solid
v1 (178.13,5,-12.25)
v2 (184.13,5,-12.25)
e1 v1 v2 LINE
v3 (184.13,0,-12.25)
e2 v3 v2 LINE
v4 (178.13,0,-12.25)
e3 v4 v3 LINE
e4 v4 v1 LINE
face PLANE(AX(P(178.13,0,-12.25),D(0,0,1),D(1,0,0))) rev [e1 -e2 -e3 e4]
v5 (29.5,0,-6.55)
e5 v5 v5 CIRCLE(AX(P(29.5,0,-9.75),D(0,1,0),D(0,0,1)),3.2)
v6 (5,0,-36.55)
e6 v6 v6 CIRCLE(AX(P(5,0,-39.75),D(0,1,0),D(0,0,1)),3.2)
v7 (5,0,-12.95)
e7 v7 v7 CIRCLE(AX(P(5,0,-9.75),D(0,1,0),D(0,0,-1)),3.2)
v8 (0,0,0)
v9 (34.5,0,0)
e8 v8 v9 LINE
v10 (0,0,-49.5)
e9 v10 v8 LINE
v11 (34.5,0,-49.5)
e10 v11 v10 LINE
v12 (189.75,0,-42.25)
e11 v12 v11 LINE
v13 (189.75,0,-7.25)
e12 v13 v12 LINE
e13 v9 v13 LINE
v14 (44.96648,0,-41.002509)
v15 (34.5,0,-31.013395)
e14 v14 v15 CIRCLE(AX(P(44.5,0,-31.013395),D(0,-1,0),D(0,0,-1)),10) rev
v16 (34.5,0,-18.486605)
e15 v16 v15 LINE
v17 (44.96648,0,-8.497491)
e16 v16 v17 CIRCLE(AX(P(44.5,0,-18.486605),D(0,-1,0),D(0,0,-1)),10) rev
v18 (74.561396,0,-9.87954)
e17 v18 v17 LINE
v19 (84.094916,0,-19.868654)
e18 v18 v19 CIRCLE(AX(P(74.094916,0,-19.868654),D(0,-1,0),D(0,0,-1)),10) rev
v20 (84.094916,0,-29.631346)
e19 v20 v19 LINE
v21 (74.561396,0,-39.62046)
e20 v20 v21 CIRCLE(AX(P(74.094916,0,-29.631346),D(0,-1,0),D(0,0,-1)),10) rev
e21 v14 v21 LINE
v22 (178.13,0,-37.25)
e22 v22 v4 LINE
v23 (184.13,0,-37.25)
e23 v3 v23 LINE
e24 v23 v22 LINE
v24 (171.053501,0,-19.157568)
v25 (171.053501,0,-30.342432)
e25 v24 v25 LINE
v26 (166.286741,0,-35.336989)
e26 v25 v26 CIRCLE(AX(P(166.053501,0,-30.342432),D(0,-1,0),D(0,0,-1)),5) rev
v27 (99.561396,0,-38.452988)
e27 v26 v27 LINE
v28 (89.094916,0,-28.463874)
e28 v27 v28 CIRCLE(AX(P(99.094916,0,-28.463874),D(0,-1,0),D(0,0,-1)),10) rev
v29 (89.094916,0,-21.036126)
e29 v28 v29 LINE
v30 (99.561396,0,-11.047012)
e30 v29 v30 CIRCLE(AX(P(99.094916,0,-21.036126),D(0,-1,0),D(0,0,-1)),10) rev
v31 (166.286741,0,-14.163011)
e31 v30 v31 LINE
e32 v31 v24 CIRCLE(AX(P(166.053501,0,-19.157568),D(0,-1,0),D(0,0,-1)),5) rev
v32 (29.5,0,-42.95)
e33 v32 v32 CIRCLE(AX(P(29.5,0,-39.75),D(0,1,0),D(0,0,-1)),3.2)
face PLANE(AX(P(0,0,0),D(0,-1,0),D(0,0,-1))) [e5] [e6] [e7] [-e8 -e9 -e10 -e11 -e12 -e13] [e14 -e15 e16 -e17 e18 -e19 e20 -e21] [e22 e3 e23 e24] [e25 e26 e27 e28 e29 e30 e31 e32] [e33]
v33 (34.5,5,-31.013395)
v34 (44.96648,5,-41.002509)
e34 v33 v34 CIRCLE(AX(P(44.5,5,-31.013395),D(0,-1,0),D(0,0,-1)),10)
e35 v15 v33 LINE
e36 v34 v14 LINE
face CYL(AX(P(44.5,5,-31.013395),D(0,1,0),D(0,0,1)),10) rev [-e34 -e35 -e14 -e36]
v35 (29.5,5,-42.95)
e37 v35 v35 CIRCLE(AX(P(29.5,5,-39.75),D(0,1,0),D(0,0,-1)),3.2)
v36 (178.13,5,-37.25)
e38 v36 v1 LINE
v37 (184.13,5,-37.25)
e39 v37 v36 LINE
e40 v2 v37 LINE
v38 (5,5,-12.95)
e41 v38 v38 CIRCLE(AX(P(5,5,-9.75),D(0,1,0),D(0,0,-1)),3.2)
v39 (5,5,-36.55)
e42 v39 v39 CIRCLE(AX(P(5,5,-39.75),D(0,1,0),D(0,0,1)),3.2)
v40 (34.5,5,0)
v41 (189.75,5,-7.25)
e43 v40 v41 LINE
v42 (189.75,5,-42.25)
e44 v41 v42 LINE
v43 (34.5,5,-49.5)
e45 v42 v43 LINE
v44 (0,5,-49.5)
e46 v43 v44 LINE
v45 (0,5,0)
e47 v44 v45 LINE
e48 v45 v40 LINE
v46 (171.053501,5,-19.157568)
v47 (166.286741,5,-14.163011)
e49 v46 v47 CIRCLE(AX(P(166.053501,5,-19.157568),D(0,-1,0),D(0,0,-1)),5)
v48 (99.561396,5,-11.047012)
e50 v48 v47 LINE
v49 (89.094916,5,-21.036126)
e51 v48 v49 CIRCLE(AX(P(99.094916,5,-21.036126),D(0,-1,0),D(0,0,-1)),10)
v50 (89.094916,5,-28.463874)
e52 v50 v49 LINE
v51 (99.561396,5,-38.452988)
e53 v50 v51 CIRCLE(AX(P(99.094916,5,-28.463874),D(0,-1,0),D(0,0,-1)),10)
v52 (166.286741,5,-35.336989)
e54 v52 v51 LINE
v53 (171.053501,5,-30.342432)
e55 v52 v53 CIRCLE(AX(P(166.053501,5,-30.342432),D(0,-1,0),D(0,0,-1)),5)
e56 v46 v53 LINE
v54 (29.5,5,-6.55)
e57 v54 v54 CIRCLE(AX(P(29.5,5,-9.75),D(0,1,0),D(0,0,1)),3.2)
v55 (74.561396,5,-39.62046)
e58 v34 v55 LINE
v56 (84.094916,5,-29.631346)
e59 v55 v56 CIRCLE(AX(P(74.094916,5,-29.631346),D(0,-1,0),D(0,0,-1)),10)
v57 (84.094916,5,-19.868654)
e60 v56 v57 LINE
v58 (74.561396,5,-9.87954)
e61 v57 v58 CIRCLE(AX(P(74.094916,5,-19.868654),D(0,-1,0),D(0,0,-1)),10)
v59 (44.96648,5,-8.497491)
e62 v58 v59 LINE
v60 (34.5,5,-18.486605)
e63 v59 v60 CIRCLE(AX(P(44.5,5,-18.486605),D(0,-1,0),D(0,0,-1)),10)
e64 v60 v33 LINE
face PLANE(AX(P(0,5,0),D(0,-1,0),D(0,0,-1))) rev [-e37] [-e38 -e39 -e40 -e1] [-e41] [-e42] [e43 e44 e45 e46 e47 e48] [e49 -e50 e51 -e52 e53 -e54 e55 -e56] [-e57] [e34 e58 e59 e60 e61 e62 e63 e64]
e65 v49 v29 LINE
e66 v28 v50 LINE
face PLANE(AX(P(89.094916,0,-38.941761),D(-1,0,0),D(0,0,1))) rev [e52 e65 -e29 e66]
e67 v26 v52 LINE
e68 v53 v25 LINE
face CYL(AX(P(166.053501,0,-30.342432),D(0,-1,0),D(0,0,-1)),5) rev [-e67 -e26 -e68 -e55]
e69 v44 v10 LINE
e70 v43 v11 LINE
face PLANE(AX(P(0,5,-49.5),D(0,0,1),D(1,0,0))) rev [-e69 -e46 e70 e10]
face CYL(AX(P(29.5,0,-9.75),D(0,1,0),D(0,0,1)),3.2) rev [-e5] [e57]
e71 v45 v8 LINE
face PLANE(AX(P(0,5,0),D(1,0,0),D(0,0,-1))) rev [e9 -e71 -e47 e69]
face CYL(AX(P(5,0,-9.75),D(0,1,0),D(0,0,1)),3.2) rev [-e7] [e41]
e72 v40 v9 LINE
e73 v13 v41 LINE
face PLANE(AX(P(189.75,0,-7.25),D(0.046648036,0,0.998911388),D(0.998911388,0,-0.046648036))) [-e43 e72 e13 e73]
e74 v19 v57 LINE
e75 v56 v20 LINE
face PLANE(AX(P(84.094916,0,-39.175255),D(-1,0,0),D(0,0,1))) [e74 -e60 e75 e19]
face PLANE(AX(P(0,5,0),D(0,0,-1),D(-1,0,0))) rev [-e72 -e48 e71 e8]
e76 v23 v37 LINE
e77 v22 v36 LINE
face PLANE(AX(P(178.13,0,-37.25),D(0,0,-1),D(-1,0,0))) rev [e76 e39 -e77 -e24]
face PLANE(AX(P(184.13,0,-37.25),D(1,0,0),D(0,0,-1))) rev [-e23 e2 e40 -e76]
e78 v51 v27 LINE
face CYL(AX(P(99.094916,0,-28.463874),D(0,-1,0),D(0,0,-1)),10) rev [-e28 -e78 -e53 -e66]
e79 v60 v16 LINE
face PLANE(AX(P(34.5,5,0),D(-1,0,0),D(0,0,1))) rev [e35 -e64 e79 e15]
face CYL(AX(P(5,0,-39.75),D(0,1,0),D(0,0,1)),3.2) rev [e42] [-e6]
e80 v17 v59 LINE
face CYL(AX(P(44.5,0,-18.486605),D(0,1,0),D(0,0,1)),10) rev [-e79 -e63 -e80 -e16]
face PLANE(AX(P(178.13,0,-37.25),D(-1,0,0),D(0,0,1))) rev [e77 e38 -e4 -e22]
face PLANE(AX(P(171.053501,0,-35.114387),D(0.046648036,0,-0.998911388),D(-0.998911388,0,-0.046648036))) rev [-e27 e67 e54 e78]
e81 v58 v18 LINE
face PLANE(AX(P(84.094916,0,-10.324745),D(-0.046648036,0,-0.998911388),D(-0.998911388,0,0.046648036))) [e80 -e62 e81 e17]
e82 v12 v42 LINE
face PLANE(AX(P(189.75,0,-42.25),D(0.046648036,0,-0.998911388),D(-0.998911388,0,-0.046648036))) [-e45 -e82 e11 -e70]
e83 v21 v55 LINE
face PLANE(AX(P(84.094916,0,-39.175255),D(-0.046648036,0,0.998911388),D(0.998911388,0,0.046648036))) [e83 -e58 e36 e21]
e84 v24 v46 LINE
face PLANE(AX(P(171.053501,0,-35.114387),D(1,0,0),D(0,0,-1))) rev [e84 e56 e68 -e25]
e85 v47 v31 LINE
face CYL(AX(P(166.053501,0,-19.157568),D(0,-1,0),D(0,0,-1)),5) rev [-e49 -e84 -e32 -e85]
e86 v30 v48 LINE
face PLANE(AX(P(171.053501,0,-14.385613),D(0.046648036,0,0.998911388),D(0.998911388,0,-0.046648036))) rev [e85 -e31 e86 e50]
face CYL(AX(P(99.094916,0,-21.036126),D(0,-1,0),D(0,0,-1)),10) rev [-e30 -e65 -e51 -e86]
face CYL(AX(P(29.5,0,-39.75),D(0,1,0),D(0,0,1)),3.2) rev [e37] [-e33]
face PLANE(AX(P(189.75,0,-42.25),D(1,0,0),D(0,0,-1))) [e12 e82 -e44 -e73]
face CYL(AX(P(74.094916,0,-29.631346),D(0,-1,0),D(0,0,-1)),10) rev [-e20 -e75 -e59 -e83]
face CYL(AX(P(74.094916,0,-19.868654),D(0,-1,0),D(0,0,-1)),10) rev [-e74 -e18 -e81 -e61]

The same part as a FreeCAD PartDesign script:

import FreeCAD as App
import Part
import Sketcher
from FreeCAD import Vector
Q = App.Units.Quantity


def edges_at(feature, points):
    """Names of the edges that pass closest to the given points."""
    edges = feature.Shape.Edges
    near = lambda p: min(range(len(edges)), key=lambda i: edges[i].distToShape(Part.Vertex(*p))[0])
    return sorted({f"Edge{near(p) + 1}" for p in points})

doc = App.newDocument("Part")
params = doc.addObject("Spreadsheet::Sheet", "Params")
for row, (alias, value) in enumerate([
    ("sketch1_width", "34.5 mm"),
    ("sketch1_height", "49.5 mm"),
    ("pad1_length", "5 mm"),
    ("sketch2_diameter", "6.4 mm"),
    ("pocket1_length", "5 mm"),
    ("sketch3_width", "6 mm"),
    ("sketch3_height", "35 mm"),
    ("sketch3_height2", "25 mm"),
    ("pad2_length", "5 mm"),
    ("fillet_radius", "10 mm"),
    ("fillet2_radius", "5 mm"),
], start=1):
    params.set(f"A{row}", alias)
    params.set(f"B{row}", "=" + value)
    params.setAlias(f"B{row}", alias)

body = doc.addObject("PartDesign::Body", "Body")

sketch1 = body.newObject("Sketcher::SketchObject", "Sketch")
sketch1.AttachmentSupport = (doc.getObject("XZ_Plane"), [""])
sketch1.MapMode = "FlatFace"
sketch1.addGeometry([
    Part.LineSegment(Vector(0, -49.5, 0), Vector(0, 0, 0)),
    Part.LineSegment(Vector(0, 0, 0), Vector(34.5, 0, 0)),
    Part.LineSegment(Vector(34.5, 0, 0), Vector(34.5, -49.5, 0)),
    Part.LineSegment(Vector(34.5, -49.5, 0), Vector(0, -49.5, 0)),
], False)
sketch1.addConstraint([
    Sketcher.Constraint("Coincident", 0, 2, 1, 1),
    Sketcher.Constraint("Coincident", 1, 2, 2, 1),
    Sketcher.Constraint("Coincident", 2, 2, 3, 1),
    Sketcher.Constraint("Coincident", 3, 2, 0, 1),
    Sketcher.Constraint("Vertical", 0),
    Sketcher.Constraint("Horizontal", 1),
    Sketcher.Constraint("Vertical", 2),
    Sketcher.Constraint("Horizontal", 3),
    Sketcher.Constraint("Coincident", 0, 2, -1, 1),
    Sketcher.Constraint("DistanceX", 1, 1, 1, 2, Q("34.5 mm")),
    Sketcher.Constraint("DistanceY", 0, 1, 0, 2, Q("49.5 mm")),
])
sketch1.setExpression("Constraints[9]", "Params.sketch1_width")
sketch1.setExpression("Constraints[10]", "Params.sketch1_height")
pad1 = body.newObject("PartDesign::Pad", "Pad")
pad1.Profile = sketch1
pad1.setExpression("Length", "Params.pad1_length")
pad1.Reversed = True

sketch2 = body.newObject("Sketcher::SketchObject", "Sketch001")
sketch2.AttachmentSupport = (doc.getObject("XZ_Plane"), [""])
sketch2.MapMode = "FlatFace"
sketch2.AttachmentOffset = App.Placement(Vector(0, 0, -5), App.Rotation())
sketch2.addGeometry([
    Part.Circle(Vector(5, -39.75, 0), Vector(0, 0, 1), 3.2),
    Part.Circle(Vector(5, -9.75, 0), Vector(0, 0, 1), 3.2),
    Part.Circle(Vector(29.5, -9.75, 0), Vector(0, 0, 1), 3.2),
    Part.Circle(Vector(29.5, -39.75, 0), Vector(0, 0, 1), 3.2),
], False)
sketch2.addConstraint([
    Sketcher.Constraint("Equal", 0, 1),
    Sketcher.Constraint("Equal", 1, 2),
    Sketcher.Constraint("Equal", 2, 3),
    Sketcher.Constraint("Horizontal", 1, 3, 2, 3),
    Sketcher.Constraint("Horizontal", 0, 3, 3, 3),
    Sketcher.Constraint("Vertical", 0, 3, 1, 3),
    Sketcher.Constraint("Vertical", 2, 3, 3, 3),
    Sketcher.Constraint("Diameter", 0, Q("6.4 mm")),
    Sketcher.Constraint("DistanceX", -1, 1, 0, 3, Q("5 mm")),
    Sketcher.Constraint("DistanceY", 0, 3, 1, 3, Q("30 mm")),
    Sketcher.Constraint("DistanceX", -1, 1, 2, 3, Q("29.5 mm")),
    Sketcher.Constraint("DistanceY", 0, 3, -1, 1, Q("39.75 mm")),
])
sketch2.setExpression("Constraints[7]", "Params.sketch2_diameter")
pocket1 = body.newObject("PartDesign::Pocket", "Pocket")
pocket1.Profile = sketch2
pocket1.setExpression("Length", "Params.pocket1_length")
pocket1.Reversed = True

sketch3 = body.newObject("Sketcher::SketchObject", "Sketch002")
sketch3.AttachmentSupport = (doc.getObject("XZ_Plane"), [""])
sketch3.MapMode = "FlatFace"
sketch3.AttachmentOffset = App.Placement(Vector(0, 0, -5), App.Rotation())
sketch3.addGeometry([
    Part.LineSegment(Vector(189.75, -42.25, 0), Vector(34.5, -49.5, 0)),
    Part.LineSegment(Vector(34.5, -49.5, 0), Vector(34.5, -41.491282, 0)),
    Part.LineSegment(Vector(34.5, -41.491282, 0), Vector(84.094916, -39.175255, 0)),
    Part.LineSegment(Vector(84.094916, -39.175255, 0), Vector(84.094916, -10.324745, 0)),
    Part.LineSegment(Vector(84.094916, -10.324745, 0), Vector(34.5, -8.008718, 0)),
    Part.LineSegment(Vector(34.5, -8.008718, 0), Vector(34.5, 0, 0)),
    Part.LineSegment(Vector(34.5, 0, 0), Vector(189.75, -7.25, 0)),
    Part.LineSegment(Vector(189.75, -7.25, 0), Vector(189.75, -42.25, 0)),
    Part.LineSegment(Vector(171.053501, -35.114387, 0), Vector(171.053501, -14.385613, 0)),
    Part.LineSegment(Vector(171.053501, -14.385613, 0), Vector(89.094916, -10.558239, 0)),
    Part.LineSegment(Vector(89.094916, -10.558239, 0), Vector(89.094916, -38.941761, 0)),
    Part.LineSegment(Vector(89.094916, -38.941761, 0), Vector(171.053501, -35.114387, 0)),
    Part.LineSegment(Vector(184.13, -12.25, 0), Vector(178.13, -12.25, 0)),
    Part.LineSegment(Vector(178.13, -12.25, 0), Vector(178.13, -37.25, 0)),
    Part.LineSegment(Vector(178.13, -37.25, 0), Vector(184.13, -37.25, 0)),
    Part.LineSegment(Vector(184.13, -37.25, 0), Vector(184.13, -12.25, 0)),
], False)
sketch3.addConstraint([
    Sketcher.Constraint("Coincident", 0, 2, 1, 1),
    Sketcher.Constraint("Coincident", 1, 2, 2, 1),
    Sketcher.Constraint("Coincident", 2, 2, 3, 1),
    Sketcher.Constraint("Coincident", 3, 2, 4, 1),
    Sketcher.Constraint("Coincident", 4, 2, 5, 1),
    Sketcher.Constraint("Coincident", 5, 2, 6, 1),
    Sketcher.Constraint("Coincident", 6, 2, 7, 1),
    Sketcher.Constraint("Coincident", 7, 2, 0, 1),
    Sketcher.Constraint("Coincident", 8, 2, 9, 1),
    Sketcher.Constraint("Coincident", 9, 2, 10, 1),
    Sketcher.Constraint("Coincident", 10, 2, 11, 1),
    Sketcher.Constraint("Coincident", 11, 2, 8, 1),
    Sketcher.Constraint("Coincident", 12, 2, 13, 1),
    Sketcher.Constraint("Coincident", 13, 2, 14, 1),
    Sketcher.Constraint("Coincident", 14, 2, 15, 1),
    Sketcher.Constraint("Coincident", 15, 2, 12, 1),
    Sketcher.Constraint("Vertical", 1),
    Sketcher.Constraint("Vertical", 3),
    Sketcher.Constraint("Vertical", 5),
    Sketcher.Constraint("Vertical", 7),
    Sketcher.Constraint("Vertical", 8),
    Sketcher.Constraint("Vertical", 10),
    Sketcher.Constraint("Horizontal", 12),
    Sketcher.Constraint("Vertical", 13),
    Sketcher.Constraint("Horizontal", 14),
    Sketcher.Constraint("Vertical", 15),
    Sketcher.Constraint("PointOnObject", 5, 2, -1),
    Sketcher.Constraint("Parallel", 0, 2),
    Sketcher.Constraint("Parallel", 4, 6),
    Sketcher.Constraint("Parallel", 6, 9),
    Sketcher.Constraint("Parallel", 2, 11),
    Sketcher.Constraint("Vertical", 1, 2, 4, 2),
    Sketcher.Constraint("Equal", 1, 5),
    Sketcher.Constraint("Equal", 2, 4),
    Sketcher.Constraint("DistanceX", 12, 2, 12, 1, Q("6 mm")),
    Sketcher.Constraint("DistanceY", 7, 2, 7, 1, Q("35 mm")),
    Sketcher.Constraint("DistanceY", 13, 2, 13, 1, Q("25 mm")),
    Sketcher.Constraint("DistanceX", 3, 2, 9, 2, Q("5 mm")),
    Sketcher.Constraint("DistanceY", 12, 2, 6, 2, Q("5 mm")),
    Sketcher.Constraint("DistanceX", -1, 1, 0, 2, Q("34.5 mm")),
    Sketcher.Constraint("DistanceY", 0, 2, -1, 1, Q("49.5 mm")),
    Sketcher.Constraint("DistanceX", -1, 1, 6, 2, Q("189.75 mm")),
    Sketcher.Constraint("DistanceX", -1, 1, 12, 2, Q("178.13 mm")),
    Sketcher.Constraint("DistanceY", 1, 1, 1, 2, Q("8.008718 mm")),
    Sketcher.Constraint("DistanceY", 3, 1, 3, 2, Q("28.85051 mm")),
    Sketcher.Constraint("DistanceY", 10, 2, 10, 1, Q("28.383521 mm")),
    Sketcher.Constraint("DistanceX", -1, 1, 8, 2, Q("171.053501 mm")),
    Sketcher.Constraint("DistanceY", 9, 2, -1, 1, Q("10.558239 mm")),
])
sketch3.setExpression("Constraints[34]", "Params.sketch3_width")
sketch3.setExpression("Constraints[35]", "Params.sketch3_height")
sketch3.setExpression("Constraints[36]", "Params.sketch3_height2")
pad2 = body.newObject("PartDesign::Pad", "Pad001")
pad2.Profile = sketch3
pad2.setExpression("Length", "Params.pad2_length")
doc.recompute()

fillet = body.newObject("PartDesign::Fillet", "Fillet")
fillet.Base = (pad2, edges_at(pad2, [
    (34.5, 2.5, -8.009),
    (84.095, 2.5, -10.325),
    (84.095, 2.5, -39.175),
    (34.5, 2.5, -41.491),
    (89.095, 2.5, -38.942),
    (89.095, 2.5, -10.558),
]))
fillet.setExpression("Radius", "Params.fillet_radius")
doc.recompute()

fillet2 = body.newObject("PartDesign::Fillet", "Fillet001")
fillet2.Base = (fillet, edges_at(fillet, [(171.054, 2.5, -35.114), (171.054, 2.5, -14.386)]))
fillet2.setExpression("Radius", "Params.fillet2_radius")

doc.recompute()
